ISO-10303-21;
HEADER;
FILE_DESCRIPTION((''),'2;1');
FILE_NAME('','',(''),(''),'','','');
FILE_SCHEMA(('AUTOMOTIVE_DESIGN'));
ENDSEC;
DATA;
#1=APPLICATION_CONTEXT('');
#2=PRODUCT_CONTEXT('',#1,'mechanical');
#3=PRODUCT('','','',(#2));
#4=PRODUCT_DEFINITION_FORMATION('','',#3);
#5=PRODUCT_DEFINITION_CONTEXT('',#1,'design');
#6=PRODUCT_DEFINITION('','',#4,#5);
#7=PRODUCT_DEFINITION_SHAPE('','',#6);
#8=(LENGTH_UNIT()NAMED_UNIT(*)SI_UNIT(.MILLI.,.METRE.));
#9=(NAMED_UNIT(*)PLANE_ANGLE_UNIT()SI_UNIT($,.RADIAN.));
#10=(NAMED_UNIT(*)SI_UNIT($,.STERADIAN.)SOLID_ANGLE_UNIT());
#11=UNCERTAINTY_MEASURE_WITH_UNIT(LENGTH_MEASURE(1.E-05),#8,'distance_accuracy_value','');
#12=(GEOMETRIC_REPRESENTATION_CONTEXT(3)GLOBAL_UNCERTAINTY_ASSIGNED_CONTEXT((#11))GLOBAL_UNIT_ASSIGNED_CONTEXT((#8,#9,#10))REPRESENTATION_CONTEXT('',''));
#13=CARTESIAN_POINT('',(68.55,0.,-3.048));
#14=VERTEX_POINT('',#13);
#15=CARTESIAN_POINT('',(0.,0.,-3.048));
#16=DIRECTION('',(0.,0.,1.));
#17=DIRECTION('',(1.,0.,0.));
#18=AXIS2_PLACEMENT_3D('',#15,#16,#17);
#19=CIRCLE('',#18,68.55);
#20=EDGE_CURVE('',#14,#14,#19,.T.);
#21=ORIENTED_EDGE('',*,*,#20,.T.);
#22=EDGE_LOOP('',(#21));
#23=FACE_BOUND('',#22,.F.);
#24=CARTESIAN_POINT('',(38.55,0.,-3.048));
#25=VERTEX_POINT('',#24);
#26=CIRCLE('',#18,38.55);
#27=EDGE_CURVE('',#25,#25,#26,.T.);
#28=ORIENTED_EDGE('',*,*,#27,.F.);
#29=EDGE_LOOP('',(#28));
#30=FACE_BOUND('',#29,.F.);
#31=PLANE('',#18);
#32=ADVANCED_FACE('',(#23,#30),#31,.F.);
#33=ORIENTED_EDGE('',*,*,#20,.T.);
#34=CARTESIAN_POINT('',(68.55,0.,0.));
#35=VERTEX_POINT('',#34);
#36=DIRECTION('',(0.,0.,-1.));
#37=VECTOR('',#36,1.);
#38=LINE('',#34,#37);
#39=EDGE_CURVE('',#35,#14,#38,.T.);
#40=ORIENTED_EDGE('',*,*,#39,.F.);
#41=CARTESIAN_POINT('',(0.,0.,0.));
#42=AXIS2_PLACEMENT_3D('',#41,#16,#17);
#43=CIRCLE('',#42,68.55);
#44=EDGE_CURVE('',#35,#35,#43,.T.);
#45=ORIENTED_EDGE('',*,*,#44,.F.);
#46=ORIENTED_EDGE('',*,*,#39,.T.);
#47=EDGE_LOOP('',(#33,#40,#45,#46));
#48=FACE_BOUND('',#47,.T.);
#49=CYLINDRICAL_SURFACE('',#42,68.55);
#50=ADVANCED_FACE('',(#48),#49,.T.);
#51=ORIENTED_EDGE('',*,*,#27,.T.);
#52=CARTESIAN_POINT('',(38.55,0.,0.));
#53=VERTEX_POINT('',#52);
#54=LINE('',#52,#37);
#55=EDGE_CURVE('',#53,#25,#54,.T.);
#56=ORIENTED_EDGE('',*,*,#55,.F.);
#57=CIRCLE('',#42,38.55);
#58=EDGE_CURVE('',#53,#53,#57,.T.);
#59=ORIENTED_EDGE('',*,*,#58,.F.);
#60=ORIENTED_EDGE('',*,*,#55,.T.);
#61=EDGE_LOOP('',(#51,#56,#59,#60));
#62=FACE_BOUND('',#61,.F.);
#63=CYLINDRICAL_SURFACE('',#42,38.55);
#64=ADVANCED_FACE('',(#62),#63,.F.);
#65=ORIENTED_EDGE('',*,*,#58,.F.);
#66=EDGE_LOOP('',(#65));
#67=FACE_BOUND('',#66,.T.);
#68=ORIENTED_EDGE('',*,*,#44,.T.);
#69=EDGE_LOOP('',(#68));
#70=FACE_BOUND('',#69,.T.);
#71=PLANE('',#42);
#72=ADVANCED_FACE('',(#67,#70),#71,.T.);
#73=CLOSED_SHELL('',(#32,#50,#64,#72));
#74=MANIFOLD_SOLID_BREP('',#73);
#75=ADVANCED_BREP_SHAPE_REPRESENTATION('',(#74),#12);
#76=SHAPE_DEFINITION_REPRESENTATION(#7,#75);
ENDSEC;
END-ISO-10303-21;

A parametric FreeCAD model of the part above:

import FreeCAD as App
import Part
import Sketcher
from FreeCAD import Vector
Q = App.Units.Quantity

doc = App.newDocument("Part")
body = doc.addObject("PartDesign::Body", "Body")

# Sketch on XY plane
sketch1 = body.newObject("Sketcher::SketchObject", "Sketch")
sketch1.AttachmentSupport = (doc.getObject("XY_Plane"), [""])
sketch1.MapMode = "FlatFace"
sketch1.addGeometry([
    Part.Circle(Vector(0, 0, 0), Vector(0, 0, 1), 69),
    Part.Circle(Vector(0, 0, 0), Vector(0, 0, 1), 39),
], False)
sketch1.addConstraint([
    Sketcher.Constraint("Coincident", 0, 3, -1, 1),
    Sketcher.Constraint("Coincident", 1, 3, -1, 1),
    Sketcher.Constraint("Diameter", 0, Q("137.1 mm")),
    Sketcher.Constraint("Diameter", 1, Q("77.1 mm")),
])
pad1 = body.newObject("PartDesign::Pad", "Pad")
pad1.Profile = sketch1
pad1.Length = 3.048
pad1.Reversed = True

doc.recompute()
